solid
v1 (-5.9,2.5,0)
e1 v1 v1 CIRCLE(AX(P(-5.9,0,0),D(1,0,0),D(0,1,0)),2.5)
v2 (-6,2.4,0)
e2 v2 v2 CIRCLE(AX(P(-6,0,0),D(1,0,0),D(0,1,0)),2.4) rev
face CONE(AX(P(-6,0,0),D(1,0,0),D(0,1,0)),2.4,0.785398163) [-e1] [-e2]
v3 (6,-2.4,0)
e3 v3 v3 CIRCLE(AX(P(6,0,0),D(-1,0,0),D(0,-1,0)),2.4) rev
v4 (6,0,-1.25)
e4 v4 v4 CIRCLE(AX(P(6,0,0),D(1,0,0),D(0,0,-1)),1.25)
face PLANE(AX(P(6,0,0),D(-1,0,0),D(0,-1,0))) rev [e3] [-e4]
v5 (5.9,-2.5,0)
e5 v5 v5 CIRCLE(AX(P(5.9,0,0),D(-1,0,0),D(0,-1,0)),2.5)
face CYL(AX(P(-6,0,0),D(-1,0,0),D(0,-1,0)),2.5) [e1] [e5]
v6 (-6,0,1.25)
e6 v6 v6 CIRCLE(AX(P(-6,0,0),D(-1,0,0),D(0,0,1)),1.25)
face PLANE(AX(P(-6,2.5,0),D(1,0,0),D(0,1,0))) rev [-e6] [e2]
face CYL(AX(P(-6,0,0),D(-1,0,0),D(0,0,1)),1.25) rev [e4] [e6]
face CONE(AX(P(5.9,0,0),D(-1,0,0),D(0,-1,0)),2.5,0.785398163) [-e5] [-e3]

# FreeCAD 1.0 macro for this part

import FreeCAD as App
import Part
import Sketcher

V = App.Vector
Q = App.Units.Quantity


def edges_at(feature, points):
    """Names of the edges that pass closest to the given points."""
    edges = feature.Shape.Edges
    near = lambda p: min(range(len(edges)), key=lambda i: edges[i].distToShape(Part.Vertex(*p))[0])
    return sorted({f"Edge{near(p) + 1}" for p in points})

doc = App.newDocument("Part")
body = doc.addObject("PartDesign::Body", "Body")

sketch1 = doc.addObject("Sketcher::SketchObject", "Sketch")
body.addObject(sketch1)
sketch1.AttachmentSupport = (doc.XY_Plane, [""])
sketch1.MapMode = "FlatFace"
sketch1.addGeometry(Part.LineSegment(V(-6, 2.5, 0), V(-6, 0, 0)), False)
sketch1.addGeometry(Part.LineSegment(V(-6, 0, 0), V(6, 0, 0)), False)
sketch1.addGeometry(Part.LineSegment(V(6, 0, 0), V(6, 2.5, 0)), False)
sketch1.addGeometry(Part.LineSegment(V(6, 2.5, 0), V(-6, 2.5, 0)), False)
sketch1.addConstraint(Sketcher.Constraint("Coincident", 0, 2, 1, 1))
sketch1.addConstraint(Sketcher.Constraint("Coincident", 1, 2, 2, 1))
sketch1.addConstraint(Sketcher.Constraint("Coincident", 2, 2, 3, 1))
sketch1.addConstraint(Sketcher.Constraint("Coincident", 3, 2, 0, 1))
sketch1.addConstraint(Sketcher.Constraint("Vertical", 0))
sketch1.addConstraint(Sketcher.Constraint("Horizontal", 1))
sketch1.addConstraint(Sketcher.Constraint("Vertical", 2))
sketch1.addConstraint(Sketcher.Constraint("Horizontal", 3))
sketch1.addConstraint(Sketcher.Constraint("Symmetric", 0, 2, 1, 2, -1, 1))
sketch1.addConstraint(Sketcher.Constraint("DistanceX", 1, 1, 1, 2, 12.0))
sketch1.addConstraint(Sketcher.Constraint("DistanceY", 0, 2, 0, 1, 2.5))
revolution = doc.addObject("PartDesign::Revolution", "Revolution")
body.addObject(revolution)
revolution.Profile = sketch1
revolution.ReferenceAxis = (sketch1, ["H_Axis"])
revolution.Angle = 360

sketch2 = doc.addObject("Sketcher::SketchObject", "Sketch001")
body.addObject(sketch2)
sketch2.AttachmentSupport = (doc.XZ_Plane, [""])
sketch2.MapMode = "FlatFace"
sketch2.addGeometry(Part.LineSegment(V(4.8, 0, 0), V(-6, 0, 0)), False)
sketch2.addGeometry(Part.LineSegment(V(-6, 0, 0), V(-6, 1.2, 0)), False)
sketch2.addGeometry(Part.LineSegment(V(-6, 1.2, 0), V(4, 1.2, 0)), False)
sketch2.addGeometry(Part.LineSegment(V(4, 1.2, 0), V(4.8, 0, 0)), False)
sketch2.addConstraint(Sketcher.Constraint("Coincident", 0, 2, 1, 1))
sketch2.addConstraint(Sketcher.Constraint("Coincident", 1, 2, 2, 1))
sketch2.addConstraint(Sketcher.Constraint("Coincident", 2, 2, 3, 1))
sketch2.addConstraint(Sketcher.Constraint("Coincident", 3, 2, 0, 1))
sketch2.addConstraint(Sketcher.Constraint("Horizontal", 0))
sketch2.addConstraint(Sketcher.Constraint("Vertical", 1))
sketch2.addConstraint(Sketcher.Constraint("Horizontal", 2))
sketch2.addConstraint(Sketcher.Constraint("PointOnObject", 0, 2, -1))
sketch2.addConstraint(Sketcher.Constraint("DistanceX", 2, 1, 2, 2, 10.0))
sketch2.addConstraint(Sketcher.Constraint("Angle", 3, Q("-59 deg")))
sketch2.addConstraint(Sketcher.Constraint("DistanceX", 0, 2, -1, 1, 6.0))
sketch2.addConstraint(Sketcher.Constraint("DistanceY", 1, 1, 1, 2, 1.25))
groove = doc.addObject("PartDesign::Groove", "Groove")
body.addObject(groove)
groove.Profile = sketch2
groove.ReferenceAxis = (sketch2, ["H_Axis"])
groove.Angle = 360
doc.recompute()

mirrored = doc.addObject("PartDesign::Mirrored", "Mirrored")
body.addObject(mirrored)
mirrored.Originals = [groove]
mirrored.MirrorPlane = (doc.YZ_Plane, [""])
body.Tip = mirrored
doc.recompute()

chamfer = doc.addObject("PartDesign::Chamfer", "Chamfer")
body.addObject(chamfer)
chamfer.Base = (mirrored, edges_at(mirrored, [(-6, 2.5, 0), (6, 2.5, 0)]))
chamfer.Size = 0.1

doc.recompute()
